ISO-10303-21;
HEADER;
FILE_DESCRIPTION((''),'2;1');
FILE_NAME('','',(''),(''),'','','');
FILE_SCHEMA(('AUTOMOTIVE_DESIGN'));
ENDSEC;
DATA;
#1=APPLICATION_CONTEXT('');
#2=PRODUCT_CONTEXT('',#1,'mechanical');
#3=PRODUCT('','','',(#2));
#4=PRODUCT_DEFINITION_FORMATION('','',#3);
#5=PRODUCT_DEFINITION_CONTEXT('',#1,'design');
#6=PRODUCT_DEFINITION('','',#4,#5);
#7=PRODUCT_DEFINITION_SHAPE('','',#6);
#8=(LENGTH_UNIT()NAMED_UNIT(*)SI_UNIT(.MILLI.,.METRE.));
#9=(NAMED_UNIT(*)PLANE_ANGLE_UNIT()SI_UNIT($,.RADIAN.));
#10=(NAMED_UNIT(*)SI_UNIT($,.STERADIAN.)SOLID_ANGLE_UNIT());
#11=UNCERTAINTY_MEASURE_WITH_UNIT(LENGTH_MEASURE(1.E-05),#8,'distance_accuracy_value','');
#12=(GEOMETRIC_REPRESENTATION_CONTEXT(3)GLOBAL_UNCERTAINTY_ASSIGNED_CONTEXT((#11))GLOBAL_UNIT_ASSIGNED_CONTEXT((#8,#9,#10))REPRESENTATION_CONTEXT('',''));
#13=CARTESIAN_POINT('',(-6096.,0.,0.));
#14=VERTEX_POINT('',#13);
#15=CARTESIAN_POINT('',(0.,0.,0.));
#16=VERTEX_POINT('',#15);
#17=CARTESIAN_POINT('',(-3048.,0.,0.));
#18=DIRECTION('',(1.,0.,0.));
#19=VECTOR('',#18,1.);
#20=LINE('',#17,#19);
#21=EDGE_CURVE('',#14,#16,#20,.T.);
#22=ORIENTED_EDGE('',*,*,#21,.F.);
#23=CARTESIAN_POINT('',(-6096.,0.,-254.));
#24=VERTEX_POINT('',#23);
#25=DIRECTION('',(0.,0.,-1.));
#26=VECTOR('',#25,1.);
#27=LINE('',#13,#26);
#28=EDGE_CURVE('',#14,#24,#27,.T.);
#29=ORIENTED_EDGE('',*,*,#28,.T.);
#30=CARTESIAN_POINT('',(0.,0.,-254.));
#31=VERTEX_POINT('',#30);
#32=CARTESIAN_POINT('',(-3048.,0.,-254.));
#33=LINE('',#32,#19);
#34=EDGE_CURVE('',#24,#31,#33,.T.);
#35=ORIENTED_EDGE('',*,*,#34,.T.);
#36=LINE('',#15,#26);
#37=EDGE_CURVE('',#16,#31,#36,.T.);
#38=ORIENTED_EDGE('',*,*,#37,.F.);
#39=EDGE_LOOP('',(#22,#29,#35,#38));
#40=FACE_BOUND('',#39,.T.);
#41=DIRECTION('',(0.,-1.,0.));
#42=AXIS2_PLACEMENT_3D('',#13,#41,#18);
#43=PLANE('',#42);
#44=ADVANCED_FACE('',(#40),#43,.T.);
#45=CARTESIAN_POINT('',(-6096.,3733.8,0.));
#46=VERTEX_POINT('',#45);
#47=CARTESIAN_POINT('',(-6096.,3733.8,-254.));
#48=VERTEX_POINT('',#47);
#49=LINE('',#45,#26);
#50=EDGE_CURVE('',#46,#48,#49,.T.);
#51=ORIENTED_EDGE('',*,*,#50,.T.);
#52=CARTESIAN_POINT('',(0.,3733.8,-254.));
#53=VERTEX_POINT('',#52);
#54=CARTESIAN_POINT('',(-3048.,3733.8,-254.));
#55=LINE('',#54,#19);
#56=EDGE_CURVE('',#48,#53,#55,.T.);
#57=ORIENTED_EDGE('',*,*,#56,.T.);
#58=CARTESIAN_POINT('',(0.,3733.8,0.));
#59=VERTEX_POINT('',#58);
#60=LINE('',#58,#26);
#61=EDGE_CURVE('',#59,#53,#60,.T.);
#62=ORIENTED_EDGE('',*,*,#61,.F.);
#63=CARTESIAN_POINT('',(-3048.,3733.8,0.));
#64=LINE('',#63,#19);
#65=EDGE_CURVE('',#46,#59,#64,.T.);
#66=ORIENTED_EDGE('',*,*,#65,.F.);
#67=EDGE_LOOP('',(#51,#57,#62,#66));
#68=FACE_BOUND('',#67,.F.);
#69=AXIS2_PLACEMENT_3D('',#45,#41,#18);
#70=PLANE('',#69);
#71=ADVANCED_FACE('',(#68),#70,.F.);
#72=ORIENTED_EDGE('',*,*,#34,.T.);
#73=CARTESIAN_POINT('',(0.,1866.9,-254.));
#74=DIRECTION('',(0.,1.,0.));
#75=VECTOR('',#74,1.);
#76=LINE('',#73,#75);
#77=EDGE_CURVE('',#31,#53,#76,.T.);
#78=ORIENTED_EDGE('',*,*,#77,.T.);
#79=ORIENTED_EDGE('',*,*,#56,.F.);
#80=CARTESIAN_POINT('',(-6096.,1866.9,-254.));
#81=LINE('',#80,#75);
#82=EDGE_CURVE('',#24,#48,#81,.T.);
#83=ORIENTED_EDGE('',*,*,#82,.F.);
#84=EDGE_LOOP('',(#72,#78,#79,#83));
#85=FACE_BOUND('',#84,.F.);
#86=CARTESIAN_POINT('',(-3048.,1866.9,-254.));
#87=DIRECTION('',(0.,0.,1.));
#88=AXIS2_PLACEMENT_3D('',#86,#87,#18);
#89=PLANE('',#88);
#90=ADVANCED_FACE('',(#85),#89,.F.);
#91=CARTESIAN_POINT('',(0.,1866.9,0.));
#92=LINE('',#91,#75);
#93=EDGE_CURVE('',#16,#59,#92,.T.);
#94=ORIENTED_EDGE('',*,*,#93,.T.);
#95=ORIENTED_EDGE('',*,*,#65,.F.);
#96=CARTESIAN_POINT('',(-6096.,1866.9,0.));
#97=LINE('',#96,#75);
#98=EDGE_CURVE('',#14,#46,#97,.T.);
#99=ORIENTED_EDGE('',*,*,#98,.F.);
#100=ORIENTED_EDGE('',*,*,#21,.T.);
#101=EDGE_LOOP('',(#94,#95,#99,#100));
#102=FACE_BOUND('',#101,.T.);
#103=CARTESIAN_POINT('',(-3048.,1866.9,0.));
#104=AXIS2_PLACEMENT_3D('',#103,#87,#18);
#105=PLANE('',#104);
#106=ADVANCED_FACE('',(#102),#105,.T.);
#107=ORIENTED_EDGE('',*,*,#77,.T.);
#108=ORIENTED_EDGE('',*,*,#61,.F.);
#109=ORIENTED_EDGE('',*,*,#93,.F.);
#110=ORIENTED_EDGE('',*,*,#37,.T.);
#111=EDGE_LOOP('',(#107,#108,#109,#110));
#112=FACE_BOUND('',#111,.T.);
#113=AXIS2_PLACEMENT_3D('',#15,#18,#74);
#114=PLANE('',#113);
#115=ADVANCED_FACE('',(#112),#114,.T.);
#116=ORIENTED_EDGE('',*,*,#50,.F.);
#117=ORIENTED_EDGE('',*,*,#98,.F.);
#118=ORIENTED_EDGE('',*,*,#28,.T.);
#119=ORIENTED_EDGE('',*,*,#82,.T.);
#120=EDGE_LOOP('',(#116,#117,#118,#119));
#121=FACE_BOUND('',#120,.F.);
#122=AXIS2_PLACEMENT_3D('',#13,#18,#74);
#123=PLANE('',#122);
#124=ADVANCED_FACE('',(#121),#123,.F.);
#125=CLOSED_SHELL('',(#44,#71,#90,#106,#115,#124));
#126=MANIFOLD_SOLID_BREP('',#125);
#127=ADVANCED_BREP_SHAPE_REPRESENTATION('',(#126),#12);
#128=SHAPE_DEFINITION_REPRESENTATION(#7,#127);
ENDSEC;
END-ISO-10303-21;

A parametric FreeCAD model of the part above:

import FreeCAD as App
import Part
import Sketcher
Q = App.Units.Quantity

doc = App.newDocument("Part")
body = doc.addObject("PartDesign::Body", "Body")

# Sketch on XY plane
sketch1 = body.newObject("Sketcher::SketchObject", "Sketch")
sketch1.AttachmentSupport = (doc.getObject("XY_Plane"), [""])
sketch1.MapMode = "FlatFace"
sketch1.addGeometry([
    Part.LineSegment(App.Vector(-6096, 3734, 0), App.Vector(-6096, 0, 0)),
    Part.LineSegment(App.Vector(-6096, 0, 0), App.Vector(0, 0, 0)),
    Part.LineSegment(App.Vector(0, 0, 0), App.Vector(0, 3734, 0)),
    Part.LineSegment(App.Vector(0, 3734, 0), App.Vector(-6096, 3734, 0)),
], False)
sketch1.addConstraint([
    Sketcher.Constraint("Coincident", 0, 2, 1, 1),
    Sketcher.Constraint("Coincident", 1, 2, 2, 1),
    Sketcher.Constraint("Coincident", 2, 2, 3, 1),
    Sketcher.Constraint("Coincident", 3, 2, 0, 1),
    Sketcher.Constraint("Vertical", 0),
    Sketcher.Constraint("Horizontal", 1),
    Sketcher.Constraint("Vertical", 2),
    Sketcher.Constraint("Horizontal", 3),
    Sketcher.Constraint("Coincident", 1, 2, -1, 1),
    Sketcher.Constraint("DistanceX", 1, 1, 1, 2, Q("240 in")),
    Sketcher.Constraint("DistanceY", 0, 2, 0, 1, Q("147 in")),
])
pad1 = body.newObject("PartDesign::Pad", "Pad")
pad1.Profile = sketch1
pad1.Length = Q("10 in")
pad1.Reversed = True
body2 = doc.addObject("PartDesign::Body", "Body001")
doc.recompute()

body2.BaseFeature = body
doc.recompute()
body.Visibility = False

doc.recompute()
